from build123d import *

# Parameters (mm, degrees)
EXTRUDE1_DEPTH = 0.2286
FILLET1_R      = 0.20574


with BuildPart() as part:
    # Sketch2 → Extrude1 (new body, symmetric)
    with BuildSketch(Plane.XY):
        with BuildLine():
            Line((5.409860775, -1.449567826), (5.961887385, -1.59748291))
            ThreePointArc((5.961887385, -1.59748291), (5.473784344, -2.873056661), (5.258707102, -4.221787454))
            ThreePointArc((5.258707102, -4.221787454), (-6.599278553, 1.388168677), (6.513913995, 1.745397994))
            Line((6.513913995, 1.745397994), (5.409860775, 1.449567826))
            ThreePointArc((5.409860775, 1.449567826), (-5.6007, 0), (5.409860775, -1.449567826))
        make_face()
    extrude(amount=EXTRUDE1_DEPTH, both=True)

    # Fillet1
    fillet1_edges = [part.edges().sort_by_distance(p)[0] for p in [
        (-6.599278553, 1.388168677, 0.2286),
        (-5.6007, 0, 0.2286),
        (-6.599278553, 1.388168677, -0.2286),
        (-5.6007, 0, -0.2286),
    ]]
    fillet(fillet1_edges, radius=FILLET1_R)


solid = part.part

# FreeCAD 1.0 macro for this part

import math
import FreeCAD as App
import Part
import Sketcher
Q = App.Units.Quantity


def edges_at(feature, points):
    """Names of the edges that pass closest to the given points."""
    edges = feature.Shape.Edges
    near = lambda p: min(range(len(edges)), key=lambda i: edges[i].distToShape(Part.Vertex(*p))[0])
    return sorted({f"Edge{near(p) + 1}" for p in points})

doc = App.newDocument("Part")
body = doc.addObject("PartDesign::Body", "Body")

sketch1 = body.newObject("Sketcher::SketchObject", "Sketch")
sketch1.AttachmentSupport = (doc.getObject("XY_Plane"), [""])
sketch1.MapMode = "FlatFace"
sketch1.addGeometry([
    Part.LineSegment(App.Vector(6, -1.6, 0), App.Vector(5.4, -1.4, 0)),
    Part.ArcOfCircle(Part.Circle(App.Vector(0, 0, 0), App.Vector(0, 0, 1), 5.6), math.radians(15), math.radians(345)),
    Part.LineSegment(App.Vector(5.4, 1.4, 0), App.Vector(6.5, 1.7, 0)),
    Part.ArcOfCircle(Part.Circle(App.Vector(0, 0, 0), App.Vector(0, 0, 1), 6.7), math.radians(15), math.radians(321)),
    Part.ArcOfCircle(Part.Circle(App.Vector(11.8, -4.6, 0), App.Vector(0, 0, 1), 6.6), math.radians(153), math.radians(177)),
], False)
sketch1.addConstraint([
    Sketcher.Constraint("Coincident", 0, 2, 1, 2),
    Sketcher.Constraint("Coincident", 1, 1, 2, 1),
    Sketcher.Constraint("Coincident", 2, 2, 3, 1),
    Sketcher.Constraint("Coincident", 3, 2, 4, 2),
    Sketcher.Constraint("Coincident", 4, 1, 0, 1),
    Sketcher.Constraint("Coincident", 1, 3, -1, 1),
    Sketcher.Constraint("Coincident", 3, 3, -1, 1),
    Sketcher.Constraint("Vertical", 0, 2, 1, 1),
    Sketcher.Constraint("Angle", 0, Q("165 deg")),
    Sketcher.Constraint("Angle", 2, Q("15 deg")),
    Sketcher.Constraint("Radius", 1, Q("0.2205 in")),
    Sketcher.Constraint("Radius", 3, Q("0.2655 in")),
    Sketcher.Constraint("Radius", 4, Q("6.599279 mm")),
    Sketcher.Constraint("Distance", 0, Q("0.0225 in")),
    Sketcher.Constraint("DistanceX", -1, 1, 0, 2, Q("5.409861 mm")),
    Sketcher.Constraint("DistanceY", 3, 2, 0, 2, Q("2.77222 mm")),
])
pad1 = body.newObject("PartDesign::Pad", "Pad")
pad1.Profile = sketch1
pad1.Length = Q("0.018 in")
pad1.Midplane = True
doc.recompute()

fillet = body.newObject("PartDesign::Fillet", "Fillet")
fillet.Base = (pad1, edges_at(pad1, [
    (-6.599, 1.388, 0.229),
    (-5.601, 0, 0.229),
    (-6.599, 1.388, -0.229),
    (-5.601, 0, -0.229),
]))
fillet.Radius = Q("0.0081 in")

doc.recompute()
